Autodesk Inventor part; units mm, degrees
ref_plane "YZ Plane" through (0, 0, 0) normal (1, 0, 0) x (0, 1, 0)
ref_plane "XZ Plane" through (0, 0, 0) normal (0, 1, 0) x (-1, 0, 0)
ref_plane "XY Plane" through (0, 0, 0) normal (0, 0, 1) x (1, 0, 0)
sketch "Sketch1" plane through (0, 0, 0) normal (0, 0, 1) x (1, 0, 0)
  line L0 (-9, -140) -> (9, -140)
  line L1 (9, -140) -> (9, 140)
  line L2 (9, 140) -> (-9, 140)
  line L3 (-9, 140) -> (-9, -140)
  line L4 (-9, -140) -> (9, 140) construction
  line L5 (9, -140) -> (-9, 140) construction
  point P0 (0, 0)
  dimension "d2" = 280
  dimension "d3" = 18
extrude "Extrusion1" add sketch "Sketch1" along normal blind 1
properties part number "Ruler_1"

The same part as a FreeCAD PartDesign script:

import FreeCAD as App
import Part
import Sketcher

V = App.Vector
Q = App.Units.Quantity


def add_polygon(sketch, points):
    """Adds a closed chain of lines whose ends are joined by coincident constraints."""
    first, n = sketch.GeometryCount, len(points)
    for a, b in zip(points, points[1:] + points[:1]):
        sketch.addGeometry(Part.LineSegment(App.Vector(*a, 0), App.Vector(*b, 0)), False)
    for i in range(n):
        sketch.addConstraint(Sketcher.Constraint("Coincident", first + i, 2, first + (i + 1) % n, 1))

doc = App.newDocument("Part")
body = doc.addObject("PartDesign::Body", "Body")

# Sketch on XY plane
sketch1 = doc.addObject("Sketcher::SketchObject", "Sketch")
body.addObject(sketch1)
sketch1.AttachmentSupport = (doc.XY_Plane, [""])
sketch1.MapMode = "FlatFace"
add_polygon(sketch1, [(-9, 140), (-9, -140), (9, -140), (9, 140)])  # lines 0-3
sketch1.addConstraint([
    Sketcher.Constraint("Vertical", 0),
    Sketcher.Constraint("Horizontal", 1),
    Sketcher.Constraint("Vertical", 2),
    Sketcher.Constraint("Horizontal", 3),
    Sketcher.Constraint("Symmetric", 0, 2, 2, 2, -1, 1),
    Sketcher.Constraint("DistanceX", 1, 1, 1, 2, Q("18 mm")),
    Sketcher.Constraint("DistanceY", 0, 2, 0, 1, Q("280 mm")),
])
pad1 = doc.addObject("PartDesign::Pad", "Pad")
body.addObject(pad1)
pad1.Profile = sketch1
pad1.Length = 1

doc.recompute()
